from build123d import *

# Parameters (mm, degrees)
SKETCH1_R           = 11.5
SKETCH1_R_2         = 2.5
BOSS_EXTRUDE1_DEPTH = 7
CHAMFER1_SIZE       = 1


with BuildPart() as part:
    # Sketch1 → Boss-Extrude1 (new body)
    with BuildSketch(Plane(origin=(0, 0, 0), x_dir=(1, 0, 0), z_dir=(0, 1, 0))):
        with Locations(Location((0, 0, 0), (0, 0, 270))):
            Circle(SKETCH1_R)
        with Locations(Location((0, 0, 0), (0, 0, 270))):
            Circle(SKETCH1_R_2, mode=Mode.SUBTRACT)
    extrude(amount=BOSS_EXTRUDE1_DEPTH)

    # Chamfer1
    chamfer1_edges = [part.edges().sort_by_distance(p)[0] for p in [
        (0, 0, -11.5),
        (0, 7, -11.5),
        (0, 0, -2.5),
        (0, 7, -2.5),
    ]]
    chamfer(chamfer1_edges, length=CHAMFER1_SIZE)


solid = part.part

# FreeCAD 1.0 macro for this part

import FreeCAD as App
import Part
import Sketcher
from FreeCAD import Vector


def edges_at(feature, points):
    """Names of the edges that pass closest to the given points."""
    edges = feature.Shape.Edges
    near = lambda p: min(range(len(edges)), key=lambda i: edges[i].distToShape(Part.Vertex(*p))[0])
    return sorted({f"Edge{near(p) + 1}" for p in points})

doc = App.newDocument("Part")
body = doc.addObject("PartDesign::Body", "Body")

sketch1 = doc.addObject("Sketcher::SketchObject", "Sketch")
body.addObject(sketch1)
sketch1.AttachmentSupport = (doc.XZ_Plane, [""])
sketch1.MapMode = "FlatFace"
sketch1.addGeometry(Part.Circle(Vector(0, 0, 0), Vector(0, 0, 1), 11.5), False)
sketch1.addGeometry(Part.Circle(Vector(0, 0, 0), Vector(0, 0, 1), 2.5), False)
sketch1.addConstraint(Sketcher.Constraint("Coincident", 0, 3, -1, 1))
sketch1.addConstraint(Sketcher.Constraint("Coincident", 1, 3, -1, 1))
sketch1.addConstraint(Sketcher.Constraint("Diameter", 0, 23.0))
sketch1.addConstraint(Sketcher.Constraint("Diameter", 1, 5.0))
pad1 = doc.addObject("PartDesign::Pad", "Pad")
body.addObject(pad1)
pad1.Profile = sketch1
pad1.Length = 7
pad1.Reversed = True
doc.recompute()

chamfer = doc.addObject("PartDesign::Chamfer", "Chamfer")
body.addObject(chamfer)
chamfer.Base = (pad1, edges_at(pad1, [
    (0, 0, -11.5),
    (0, 7, -11.5),
    (0, 0, -2.5),
    (0, 7, -2.5),
]))
chamfer.Size = 1

doc.recompute()
